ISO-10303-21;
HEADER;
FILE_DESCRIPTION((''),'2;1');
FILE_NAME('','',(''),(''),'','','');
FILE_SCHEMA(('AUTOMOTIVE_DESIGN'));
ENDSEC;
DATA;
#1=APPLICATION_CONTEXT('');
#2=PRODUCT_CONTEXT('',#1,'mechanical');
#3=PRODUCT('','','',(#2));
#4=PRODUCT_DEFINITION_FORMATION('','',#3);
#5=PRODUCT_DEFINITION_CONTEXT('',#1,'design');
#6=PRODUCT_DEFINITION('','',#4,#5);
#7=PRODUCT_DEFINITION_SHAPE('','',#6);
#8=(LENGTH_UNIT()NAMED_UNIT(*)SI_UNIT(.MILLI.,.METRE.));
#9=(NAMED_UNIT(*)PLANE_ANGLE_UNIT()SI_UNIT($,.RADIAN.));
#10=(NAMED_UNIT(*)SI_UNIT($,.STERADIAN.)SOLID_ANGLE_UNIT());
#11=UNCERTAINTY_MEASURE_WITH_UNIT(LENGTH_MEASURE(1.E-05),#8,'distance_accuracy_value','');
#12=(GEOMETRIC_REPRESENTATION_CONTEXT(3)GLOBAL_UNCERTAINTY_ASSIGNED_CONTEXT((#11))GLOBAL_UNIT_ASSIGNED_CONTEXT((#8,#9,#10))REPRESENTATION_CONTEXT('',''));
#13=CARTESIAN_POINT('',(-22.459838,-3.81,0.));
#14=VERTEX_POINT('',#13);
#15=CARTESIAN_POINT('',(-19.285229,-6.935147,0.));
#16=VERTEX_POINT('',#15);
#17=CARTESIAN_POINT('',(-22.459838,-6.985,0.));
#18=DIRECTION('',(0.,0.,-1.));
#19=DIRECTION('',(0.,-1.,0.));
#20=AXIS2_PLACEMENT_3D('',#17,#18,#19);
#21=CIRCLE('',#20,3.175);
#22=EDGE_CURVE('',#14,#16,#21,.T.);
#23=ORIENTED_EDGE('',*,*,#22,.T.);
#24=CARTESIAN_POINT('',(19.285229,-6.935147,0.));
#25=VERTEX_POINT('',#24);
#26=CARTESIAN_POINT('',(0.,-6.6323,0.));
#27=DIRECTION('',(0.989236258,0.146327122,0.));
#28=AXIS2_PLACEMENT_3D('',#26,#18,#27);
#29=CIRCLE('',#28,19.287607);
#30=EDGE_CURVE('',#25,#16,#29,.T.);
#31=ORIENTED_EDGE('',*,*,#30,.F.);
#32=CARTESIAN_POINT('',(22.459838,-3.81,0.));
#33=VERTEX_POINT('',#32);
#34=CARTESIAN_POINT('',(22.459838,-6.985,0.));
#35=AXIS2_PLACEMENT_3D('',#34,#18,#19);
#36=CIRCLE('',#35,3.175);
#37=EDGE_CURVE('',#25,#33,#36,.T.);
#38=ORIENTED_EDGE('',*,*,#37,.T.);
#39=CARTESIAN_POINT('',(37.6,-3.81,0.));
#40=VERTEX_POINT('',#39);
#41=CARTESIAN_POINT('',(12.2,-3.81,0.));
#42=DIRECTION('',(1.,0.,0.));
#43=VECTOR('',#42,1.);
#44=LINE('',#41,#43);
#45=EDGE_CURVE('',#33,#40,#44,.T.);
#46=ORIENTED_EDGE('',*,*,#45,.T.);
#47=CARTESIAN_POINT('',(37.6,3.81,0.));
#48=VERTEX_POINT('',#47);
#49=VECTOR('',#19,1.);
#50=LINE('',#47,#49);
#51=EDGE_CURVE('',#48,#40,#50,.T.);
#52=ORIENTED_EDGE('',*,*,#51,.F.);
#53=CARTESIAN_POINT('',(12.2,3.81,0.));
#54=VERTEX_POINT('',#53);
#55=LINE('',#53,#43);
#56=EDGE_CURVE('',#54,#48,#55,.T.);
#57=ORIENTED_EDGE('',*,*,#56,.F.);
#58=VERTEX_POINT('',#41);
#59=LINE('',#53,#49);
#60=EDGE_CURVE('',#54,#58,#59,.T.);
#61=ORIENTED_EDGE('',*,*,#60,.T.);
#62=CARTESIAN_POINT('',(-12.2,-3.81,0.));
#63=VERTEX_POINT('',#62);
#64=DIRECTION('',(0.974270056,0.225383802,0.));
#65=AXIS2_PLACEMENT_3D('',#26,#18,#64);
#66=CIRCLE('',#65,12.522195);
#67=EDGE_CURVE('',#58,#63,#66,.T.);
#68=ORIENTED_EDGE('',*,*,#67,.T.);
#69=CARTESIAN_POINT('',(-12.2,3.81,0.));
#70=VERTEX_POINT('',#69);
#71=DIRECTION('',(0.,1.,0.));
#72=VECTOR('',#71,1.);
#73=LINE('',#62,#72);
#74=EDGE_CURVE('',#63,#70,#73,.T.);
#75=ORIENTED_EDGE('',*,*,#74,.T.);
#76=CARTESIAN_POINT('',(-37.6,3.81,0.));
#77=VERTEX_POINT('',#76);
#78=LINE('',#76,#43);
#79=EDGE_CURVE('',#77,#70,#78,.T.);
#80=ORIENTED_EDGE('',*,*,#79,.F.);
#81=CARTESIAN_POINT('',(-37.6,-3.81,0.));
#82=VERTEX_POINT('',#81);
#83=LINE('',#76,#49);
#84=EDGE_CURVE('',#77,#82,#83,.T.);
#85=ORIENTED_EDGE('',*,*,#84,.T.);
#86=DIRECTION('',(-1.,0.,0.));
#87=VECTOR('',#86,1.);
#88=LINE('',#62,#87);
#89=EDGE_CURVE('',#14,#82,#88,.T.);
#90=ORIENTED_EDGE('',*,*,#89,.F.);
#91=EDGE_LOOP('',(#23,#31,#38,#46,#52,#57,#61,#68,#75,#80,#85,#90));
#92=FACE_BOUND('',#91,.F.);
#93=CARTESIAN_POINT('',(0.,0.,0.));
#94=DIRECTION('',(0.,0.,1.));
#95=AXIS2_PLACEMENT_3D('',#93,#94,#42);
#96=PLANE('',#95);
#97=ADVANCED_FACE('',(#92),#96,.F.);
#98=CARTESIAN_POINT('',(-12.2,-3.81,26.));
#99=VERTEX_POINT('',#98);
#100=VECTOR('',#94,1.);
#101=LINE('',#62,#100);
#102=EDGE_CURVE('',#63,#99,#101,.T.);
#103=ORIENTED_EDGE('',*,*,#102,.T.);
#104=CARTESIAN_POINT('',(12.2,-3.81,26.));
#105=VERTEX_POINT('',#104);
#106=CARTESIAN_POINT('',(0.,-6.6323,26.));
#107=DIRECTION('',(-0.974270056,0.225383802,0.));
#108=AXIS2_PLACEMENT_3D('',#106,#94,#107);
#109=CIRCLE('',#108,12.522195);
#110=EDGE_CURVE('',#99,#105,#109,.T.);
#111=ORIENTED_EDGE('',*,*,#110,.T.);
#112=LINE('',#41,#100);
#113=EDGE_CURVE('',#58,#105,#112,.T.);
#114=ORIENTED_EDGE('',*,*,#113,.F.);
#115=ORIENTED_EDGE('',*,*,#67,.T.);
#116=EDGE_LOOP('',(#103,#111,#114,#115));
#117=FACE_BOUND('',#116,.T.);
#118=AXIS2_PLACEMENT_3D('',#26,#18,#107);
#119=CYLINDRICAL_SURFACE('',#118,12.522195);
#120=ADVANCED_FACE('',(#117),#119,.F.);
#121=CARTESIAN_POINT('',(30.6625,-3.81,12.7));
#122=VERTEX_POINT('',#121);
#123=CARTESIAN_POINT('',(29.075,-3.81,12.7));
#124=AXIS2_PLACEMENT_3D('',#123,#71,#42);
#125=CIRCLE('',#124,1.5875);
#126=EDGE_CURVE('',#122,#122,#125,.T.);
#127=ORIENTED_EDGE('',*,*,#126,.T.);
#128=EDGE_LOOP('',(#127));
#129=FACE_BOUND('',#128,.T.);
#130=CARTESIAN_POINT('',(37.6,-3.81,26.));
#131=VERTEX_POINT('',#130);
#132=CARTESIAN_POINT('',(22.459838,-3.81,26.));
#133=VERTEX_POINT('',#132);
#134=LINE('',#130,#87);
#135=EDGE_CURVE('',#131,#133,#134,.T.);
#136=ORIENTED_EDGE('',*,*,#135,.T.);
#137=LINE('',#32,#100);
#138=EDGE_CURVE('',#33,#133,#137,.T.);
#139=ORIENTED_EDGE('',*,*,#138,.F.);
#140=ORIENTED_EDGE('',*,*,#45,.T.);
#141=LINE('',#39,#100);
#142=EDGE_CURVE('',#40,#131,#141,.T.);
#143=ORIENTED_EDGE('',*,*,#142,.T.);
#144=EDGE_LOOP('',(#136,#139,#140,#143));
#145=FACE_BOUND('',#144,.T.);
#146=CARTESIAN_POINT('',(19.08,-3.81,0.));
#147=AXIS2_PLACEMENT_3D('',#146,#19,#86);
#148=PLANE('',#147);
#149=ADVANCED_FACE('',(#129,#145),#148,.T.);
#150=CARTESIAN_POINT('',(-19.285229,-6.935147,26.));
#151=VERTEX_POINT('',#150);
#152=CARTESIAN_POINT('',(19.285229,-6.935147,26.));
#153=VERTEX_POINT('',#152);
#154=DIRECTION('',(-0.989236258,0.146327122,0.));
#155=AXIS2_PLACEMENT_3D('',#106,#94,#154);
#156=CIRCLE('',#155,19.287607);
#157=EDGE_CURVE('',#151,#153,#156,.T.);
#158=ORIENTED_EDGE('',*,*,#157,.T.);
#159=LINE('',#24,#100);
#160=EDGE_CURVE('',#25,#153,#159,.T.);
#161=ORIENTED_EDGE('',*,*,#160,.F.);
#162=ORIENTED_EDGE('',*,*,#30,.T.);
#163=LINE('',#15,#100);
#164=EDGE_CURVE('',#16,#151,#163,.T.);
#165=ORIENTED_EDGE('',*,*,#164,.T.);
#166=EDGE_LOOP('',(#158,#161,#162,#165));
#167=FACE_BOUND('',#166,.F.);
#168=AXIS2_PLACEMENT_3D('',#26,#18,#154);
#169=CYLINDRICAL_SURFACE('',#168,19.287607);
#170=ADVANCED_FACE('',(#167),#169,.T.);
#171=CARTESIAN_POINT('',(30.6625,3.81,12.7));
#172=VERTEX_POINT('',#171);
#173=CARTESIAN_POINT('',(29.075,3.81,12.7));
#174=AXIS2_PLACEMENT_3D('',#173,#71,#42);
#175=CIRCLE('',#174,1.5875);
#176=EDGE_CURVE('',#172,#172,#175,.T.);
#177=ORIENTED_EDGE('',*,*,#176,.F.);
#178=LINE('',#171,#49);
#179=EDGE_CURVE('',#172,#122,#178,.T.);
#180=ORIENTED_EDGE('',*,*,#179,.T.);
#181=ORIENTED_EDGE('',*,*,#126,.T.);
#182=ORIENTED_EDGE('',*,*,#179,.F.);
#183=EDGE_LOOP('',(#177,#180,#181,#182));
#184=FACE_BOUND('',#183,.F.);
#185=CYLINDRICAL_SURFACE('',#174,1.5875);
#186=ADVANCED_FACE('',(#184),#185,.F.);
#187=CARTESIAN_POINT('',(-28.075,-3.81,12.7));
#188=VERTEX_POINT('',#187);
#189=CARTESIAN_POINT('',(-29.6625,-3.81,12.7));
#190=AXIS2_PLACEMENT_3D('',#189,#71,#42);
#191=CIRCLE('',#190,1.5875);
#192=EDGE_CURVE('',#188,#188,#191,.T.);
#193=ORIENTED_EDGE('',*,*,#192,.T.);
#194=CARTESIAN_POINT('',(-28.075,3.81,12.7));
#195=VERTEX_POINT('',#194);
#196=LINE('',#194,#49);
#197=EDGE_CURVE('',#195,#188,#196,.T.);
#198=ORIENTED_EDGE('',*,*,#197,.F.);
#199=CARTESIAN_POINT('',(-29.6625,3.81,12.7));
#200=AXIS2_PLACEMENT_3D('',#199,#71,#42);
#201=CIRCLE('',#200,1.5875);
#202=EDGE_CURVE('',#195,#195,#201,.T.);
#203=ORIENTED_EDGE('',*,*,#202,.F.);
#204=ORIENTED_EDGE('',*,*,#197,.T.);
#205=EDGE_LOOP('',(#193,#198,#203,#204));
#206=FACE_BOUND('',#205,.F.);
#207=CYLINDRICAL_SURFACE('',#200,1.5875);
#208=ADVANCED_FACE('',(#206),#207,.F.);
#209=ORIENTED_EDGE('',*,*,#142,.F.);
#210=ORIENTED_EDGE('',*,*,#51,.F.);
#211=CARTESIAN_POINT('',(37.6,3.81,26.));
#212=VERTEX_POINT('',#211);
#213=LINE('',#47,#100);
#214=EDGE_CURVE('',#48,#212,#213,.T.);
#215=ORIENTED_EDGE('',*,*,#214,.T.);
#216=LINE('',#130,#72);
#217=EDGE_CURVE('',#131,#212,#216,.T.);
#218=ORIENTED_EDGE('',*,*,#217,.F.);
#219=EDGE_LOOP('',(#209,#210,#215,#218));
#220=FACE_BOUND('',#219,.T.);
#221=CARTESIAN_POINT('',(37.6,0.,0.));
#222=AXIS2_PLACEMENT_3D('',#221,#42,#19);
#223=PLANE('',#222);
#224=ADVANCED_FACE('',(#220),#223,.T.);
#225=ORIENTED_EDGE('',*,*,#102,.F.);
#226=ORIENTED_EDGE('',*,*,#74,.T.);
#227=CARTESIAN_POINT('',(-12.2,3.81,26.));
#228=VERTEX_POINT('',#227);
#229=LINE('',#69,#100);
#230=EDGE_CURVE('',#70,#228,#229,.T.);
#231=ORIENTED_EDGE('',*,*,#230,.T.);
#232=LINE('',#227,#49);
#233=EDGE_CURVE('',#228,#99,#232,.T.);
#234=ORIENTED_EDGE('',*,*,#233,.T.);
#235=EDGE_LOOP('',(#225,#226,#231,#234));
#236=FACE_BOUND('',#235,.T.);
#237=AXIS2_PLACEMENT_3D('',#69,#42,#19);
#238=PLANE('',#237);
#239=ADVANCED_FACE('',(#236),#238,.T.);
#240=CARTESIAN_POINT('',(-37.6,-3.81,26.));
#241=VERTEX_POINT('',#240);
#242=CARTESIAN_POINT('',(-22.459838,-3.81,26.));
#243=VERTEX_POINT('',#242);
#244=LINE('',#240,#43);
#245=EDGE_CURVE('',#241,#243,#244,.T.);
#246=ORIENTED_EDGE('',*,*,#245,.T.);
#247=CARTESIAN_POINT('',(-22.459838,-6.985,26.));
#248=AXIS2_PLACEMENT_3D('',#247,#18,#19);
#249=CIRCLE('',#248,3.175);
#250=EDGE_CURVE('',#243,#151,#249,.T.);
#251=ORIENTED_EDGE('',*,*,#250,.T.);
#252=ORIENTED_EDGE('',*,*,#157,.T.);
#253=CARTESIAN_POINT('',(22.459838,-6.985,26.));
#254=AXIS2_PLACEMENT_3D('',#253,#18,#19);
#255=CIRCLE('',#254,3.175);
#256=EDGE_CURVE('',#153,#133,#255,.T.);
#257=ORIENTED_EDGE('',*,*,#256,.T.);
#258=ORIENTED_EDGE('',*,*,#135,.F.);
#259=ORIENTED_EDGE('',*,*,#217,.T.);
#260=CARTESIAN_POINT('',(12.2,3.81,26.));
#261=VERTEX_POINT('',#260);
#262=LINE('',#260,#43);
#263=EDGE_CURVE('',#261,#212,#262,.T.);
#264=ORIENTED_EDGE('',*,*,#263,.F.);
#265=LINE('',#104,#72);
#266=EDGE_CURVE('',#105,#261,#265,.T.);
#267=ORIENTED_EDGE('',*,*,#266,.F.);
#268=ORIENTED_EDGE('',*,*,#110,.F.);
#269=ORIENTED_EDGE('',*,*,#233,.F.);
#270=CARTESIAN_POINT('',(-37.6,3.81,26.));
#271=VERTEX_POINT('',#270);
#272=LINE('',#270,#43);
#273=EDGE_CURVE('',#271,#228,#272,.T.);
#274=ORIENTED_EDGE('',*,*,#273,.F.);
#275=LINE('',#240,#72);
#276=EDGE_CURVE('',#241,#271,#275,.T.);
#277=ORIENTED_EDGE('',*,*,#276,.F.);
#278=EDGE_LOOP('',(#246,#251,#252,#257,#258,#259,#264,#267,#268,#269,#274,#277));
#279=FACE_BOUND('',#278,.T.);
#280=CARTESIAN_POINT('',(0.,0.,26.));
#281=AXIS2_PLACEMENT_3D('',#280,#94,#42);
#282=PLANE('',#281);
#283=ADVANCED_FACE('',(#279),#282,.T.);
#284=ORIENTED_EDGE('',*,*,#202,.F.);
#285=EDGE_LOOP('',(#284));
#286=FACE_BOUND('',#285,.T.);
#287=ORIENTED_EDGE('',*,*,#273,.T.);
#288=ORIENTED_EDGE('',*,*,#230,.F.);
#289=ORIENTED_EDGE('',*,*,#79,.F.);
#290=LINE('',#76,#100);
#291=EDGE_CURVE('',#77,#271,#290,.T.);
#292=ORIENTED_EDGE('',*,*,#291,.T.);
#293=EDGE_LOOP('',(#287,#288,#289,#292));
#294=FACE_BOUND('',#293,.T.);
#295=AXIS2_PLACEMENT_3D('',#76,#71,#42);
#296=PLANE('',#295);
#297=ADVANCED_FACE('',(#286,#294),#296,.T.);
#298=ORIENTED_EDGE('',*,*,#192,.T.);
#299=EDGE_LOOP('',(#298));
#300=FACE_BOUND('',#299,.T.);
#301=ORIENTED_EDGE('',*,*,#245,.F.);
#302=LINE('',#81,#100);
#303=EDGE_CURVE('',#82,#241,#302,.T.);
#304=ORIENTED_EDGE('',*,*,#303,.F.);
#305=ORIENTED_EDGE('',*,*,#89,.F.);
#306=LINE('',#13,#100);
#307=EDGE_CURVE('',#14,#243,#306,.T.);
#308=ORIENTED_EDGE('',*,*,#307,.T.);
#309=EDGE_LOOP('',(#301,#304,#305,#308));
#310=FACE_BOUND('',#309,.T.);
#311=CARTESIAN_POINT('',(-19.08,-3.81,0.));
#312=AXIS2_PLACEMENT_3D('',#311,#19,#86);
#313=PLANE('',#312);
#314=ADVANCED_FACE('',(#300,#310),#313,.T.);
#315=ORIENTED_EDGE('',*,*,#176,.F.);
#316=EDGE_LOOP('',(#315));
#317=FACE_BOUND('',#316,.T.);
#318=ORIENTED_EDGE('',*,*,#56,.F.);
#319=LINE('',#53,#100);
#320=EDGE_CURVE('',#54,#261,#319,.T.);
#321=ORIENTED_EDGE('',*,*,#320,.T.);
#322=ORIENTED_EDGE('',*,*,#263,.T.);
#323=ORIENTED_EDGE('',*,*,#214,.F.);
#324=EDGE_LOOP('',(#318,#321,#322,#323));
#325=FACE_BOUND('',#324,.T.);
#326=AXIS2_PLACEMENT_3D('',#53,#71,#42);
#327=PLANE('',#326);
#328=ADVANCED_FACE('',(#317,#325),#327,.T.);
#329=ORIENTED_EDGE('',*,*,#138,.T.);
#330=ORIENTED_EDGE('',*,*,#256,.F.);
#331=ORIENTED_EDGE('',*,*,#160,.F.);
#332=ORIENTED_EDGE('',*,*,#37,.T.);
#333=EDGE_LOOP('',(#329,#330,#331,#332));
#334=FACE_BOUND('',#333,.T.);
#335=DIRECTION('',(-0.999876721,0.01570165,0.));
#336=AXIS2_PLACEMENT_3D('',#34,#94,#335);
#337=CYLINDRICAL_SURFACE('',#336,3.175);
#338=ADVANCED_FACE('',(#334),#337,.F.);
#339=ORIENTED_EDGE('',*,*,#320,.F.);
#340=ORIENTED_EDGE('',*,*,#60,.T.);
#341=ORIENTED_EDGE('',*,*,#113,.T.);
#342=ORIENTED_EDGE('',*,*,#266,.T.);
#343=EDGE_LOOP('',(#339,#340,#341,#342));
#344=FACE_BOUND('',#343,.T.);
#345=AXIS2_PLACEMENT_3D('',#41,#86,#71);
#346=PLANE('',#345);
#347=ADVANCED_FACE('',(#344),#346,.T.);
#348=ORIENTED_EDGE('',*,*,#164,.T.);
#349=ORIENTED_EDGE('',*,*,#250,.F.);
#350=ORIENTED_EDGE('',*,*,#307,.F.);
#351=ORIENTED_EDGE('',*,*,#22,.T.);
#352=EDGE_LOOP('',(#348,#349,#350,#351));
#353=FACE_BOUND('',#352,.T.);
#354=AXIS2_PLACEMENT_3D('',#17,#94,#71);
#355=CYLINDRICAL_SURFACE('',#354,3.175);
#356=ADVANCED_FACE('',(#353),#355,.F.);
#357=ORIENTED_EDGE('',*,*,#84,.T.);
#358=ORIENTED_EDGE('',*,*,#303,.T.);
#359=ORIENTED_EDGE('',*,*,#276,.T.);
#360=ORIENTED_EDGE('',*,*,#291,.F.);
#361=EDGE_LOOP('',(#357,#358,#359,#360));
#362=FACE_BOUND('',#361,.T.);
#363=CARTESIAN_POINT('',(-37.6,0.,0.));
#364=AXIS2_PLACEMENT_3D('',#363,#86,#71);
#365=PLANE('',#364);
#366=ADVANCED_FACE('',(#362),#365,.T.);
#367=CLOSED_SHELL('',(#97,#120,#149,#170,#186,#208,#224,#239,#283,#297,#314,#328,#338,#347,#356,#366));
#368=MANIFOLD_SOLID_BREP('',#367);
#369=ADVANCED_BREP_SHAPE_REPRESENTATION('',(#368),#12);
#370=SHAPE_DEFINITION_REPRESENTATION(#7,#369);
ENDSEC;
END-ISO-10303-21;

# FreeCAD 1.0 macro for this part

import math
import FreeCAD as App
import Part
import Sketcher
from FreeCAD import Vector
Q = App.Units.Quantity


def edges_at(feature, points):
    """Names of the edges that pass closest to the given points."""
    edges = feature.Shape.Edges
    near = lambda p: min(range(len(edges)), key=lambda i: edges[i].distToShape(Part.Vertex(*p))[0])
    return sorted({f"Edge{near(p) + 1}" for p in points})

doc = App.newDocument("Part")
body = doc.addObject("PartDesign::Body", "Body")
body.AllowCompound = True

# Sketch on XY plane
sketch1 = body.newObject("Sketcher::SketchObject", "Sketch")
sketch1.AttachmentSupport = (doc.getObject("XY_Plane"), [""])
sketch1.MapMode = "FlatFace"
sketch1.addGeometry([
    Part.LineSegment(Vector(-12.2, 3.81, 0), Vector(-37.6, 3.81, 0)),  # 0
    Part.LineSegment(Vector(-37.6, 3.81, 0), Vector(-37.6, -3.81, 0)),  # 1
    Part.LineSegment(Vector(-37.6, -3.81, 0), Vector(-12.2, -3.81, 0)),  # 2
    Part.LineSegment(Vector(-12.2, -3.81, 0), Vector(-12.2, 3.81, 0)),  # 3
    Part.LineSegment(Vector(12.2, -3.81, 0), Vector(37.6, -3.81, 0)),  # 4
    Part.LineSegment(Vector(37.6, -3.81, 0), Vector(37.6, 3.81, 0)),  # 5
    Part.LineSegment(Vector(37.6, 3.81, 0), Vector(12.2, 3.81, 0)),  # 6
    Part.LineSegment(Vector(12.2, 3.81, 0), Vector(12.2, -3.81, 0)),  # 7
], False)
sketch1.addConstraint([
    Sketcher.Constraint("Coincident", 0, 2, 1, 1),
    Sketcher.Constraint("Coincident", 1, 2, 2, 1),
    Sketcher.Constraint("Coincident", 2, 2, 3, 1),
    Sketcher.Constraint("Coincident", 3, 2, 0, 1),
    Sketcher.Constraint("Coincident", 4, 2, 5, 1),
    Sketcher.Constraint("Coincident", 5, 2, 6, 1),
    Sketcher.Constraint("Coincident", 6, 2, 7, 1),
    Sketcher.Constraint("Coincident", 7, 2, 4, 1),
    Sketcher.Constraint("Horizontal", 0),
    Sketcher.Constraint("Vertical", 1),
    Sketcher.Constraint("Horizontal", 2),
    Sketcher.Constraint("Vertical", 3),
    Sketcher.Constraint("Horizontal", 4),
    Sketcher.Constraint("Vertical", 5),
    Sketcher.Constraint("Horizontal", 6),
    Sketcher.Constraint("Vertical", 7),
    Sketcher.Constraint("Symmetric", 0, 2, 4, 2, -1, 1),
    Sketcher.Constraint("Symmetric", 2, 2, 6, 2, -1, 1),
    Sketcher.Constraint("Horizontal", 2, 2, 4, 2),
    Sketcher.Constraint("DistanceX", 0, 2, 0, 1, Q("1 in")),
    Sketcher.Constraint("DistanceY", 1, 2, 1, 1, Q("0.3 in")),
    Sketcher.Constraint("DistanceX", 3, 2, 6, 2, Q("24.4 mm")),
])
pad1 = body.newObject("PartDesign::Pad", "Pad")
pad1.Profile = sketch1
pad1.Length = 26

# Sketch on XY plane
sketch2 = body.newObject("Sketcher::SketchObject", "Sketch001")
sketch2.AttachmentSupport = (doc.getObject("XY_Plane"), [""])
sketch2.MapMode = "FlatFace"
sketch2.addGeometry([
    Part.LineSegment(Vector(-12.2, -3.81, 0), Vector(-19.08, -3.81, 0)),
    Part.ArcOfCircle(Part.Circle(Vector(0, -6.6323, 0), Vector(0, 0, 1), 19.287607), math.radians(171.585863), math.radians(368.414137)),
    Part.LineSegment(Vector(19.08, -3.81, 0), Vector(12.2, -3.81, 0)),
    Part.ArcOfCircle(Part.Circle(Vector(0, -6.6323, 0), Vector(0, 0, 1), 12.522195), math.radians(166.974552), math.radians(373.025448)),
], False)
sketch2.addConstraint([
    Sketcher.Constraint("Coincident", 0, 2, 1, 1),
    Sketcher.Constraint("Coincident", 1, 2, 2, 1),
    Sketcher.Constraint("Coincident", 2, 2, 3, 2),
    Sketcher.Constraint("Coincident", 3, 1, 0, 1),
    Sketcher.Constraint("Horizontal", 0),
    Sketcher.Constraint("Horizontal", 2),
    Sketcher.Constraint("Coincident", 3, 3, 1, 3),
    Sketcher.Constraint("Symmetric", 0, 2, 1, 2, -2),
    Sketcher.Constraint("Radius", 3, Q("0.493 in")),
    Sketcher.Constraint("DistanceY", 0, 2, -1, 1, Q("0.15 in")),
    Sketcher.Constraint("Radius", 1, Q("19.2876 mm")),
    Sketcher.Constraint("DistanceX", 3, 1, 2, 2, Q("24.4 mm")),
])
pad2 = body.newObject("PartDesign::Pad", "Pad001")
pad2.Profile = sketch2
pad2.Length = 26

# Sketch on XZ plane
sketch3 = body.newObject("Sketcher::SketchObject", "Sketch002")
sketch3.AttachmentSupport = (doc.getObject("XZ_Plane"), [""])
sketch3.MapMode = "FlatFace"
sketch3.AttachmentOffset = App.Placement(Vector(0, 0, -0.15 * 25.4), App.Rotation())
sketch3.addGeometry([
    Part.Circle(Vector(-29.6625, 12.7, 0), Vector(0, 0, 1), 1.5875),
    Part.Circle(Vector(29.075, 12.7, 0), Vector(0, 0, 1), 1.5875),
], False)
sketch3.addConstraint([
    Sketcher.Constraint("Equal", 0, 1),
    Sketcher.Constraint("Horizontal", 0, 3, 1, 3),
    Sketcher.Constraint("Diameter", 0, Q("0.125 in")),
    Sketcher.Constraint("DistanceY", -1, 1, 0, 3, Q("0.5 in")),
    Sketcher.Constraint("DistanceX", 0, 3, 1, 3, Q("2.3125 in")),
    Sketcher.Constraint("DistanceX", 0, 3, -1, 1, Q("29.6625 mm")),
])
pocket1 = body.newObject("PartDesign::Pocket", "Pocket")
pocket1.Profile = sketch3
pocket1.Length = Q("0.4 in")
pocket1.Reversed = True
doc.recompute()

fillet = body.newObject("PartDesign::Fillet", "Fillet")
fillet.Base = (pocket1, edges_at(pocket1, [(-19.08, -3.81, 13), (19.08, -3.81, 13)]))
fillet.Radius = Q("0.125 in")

doc.recompute()
